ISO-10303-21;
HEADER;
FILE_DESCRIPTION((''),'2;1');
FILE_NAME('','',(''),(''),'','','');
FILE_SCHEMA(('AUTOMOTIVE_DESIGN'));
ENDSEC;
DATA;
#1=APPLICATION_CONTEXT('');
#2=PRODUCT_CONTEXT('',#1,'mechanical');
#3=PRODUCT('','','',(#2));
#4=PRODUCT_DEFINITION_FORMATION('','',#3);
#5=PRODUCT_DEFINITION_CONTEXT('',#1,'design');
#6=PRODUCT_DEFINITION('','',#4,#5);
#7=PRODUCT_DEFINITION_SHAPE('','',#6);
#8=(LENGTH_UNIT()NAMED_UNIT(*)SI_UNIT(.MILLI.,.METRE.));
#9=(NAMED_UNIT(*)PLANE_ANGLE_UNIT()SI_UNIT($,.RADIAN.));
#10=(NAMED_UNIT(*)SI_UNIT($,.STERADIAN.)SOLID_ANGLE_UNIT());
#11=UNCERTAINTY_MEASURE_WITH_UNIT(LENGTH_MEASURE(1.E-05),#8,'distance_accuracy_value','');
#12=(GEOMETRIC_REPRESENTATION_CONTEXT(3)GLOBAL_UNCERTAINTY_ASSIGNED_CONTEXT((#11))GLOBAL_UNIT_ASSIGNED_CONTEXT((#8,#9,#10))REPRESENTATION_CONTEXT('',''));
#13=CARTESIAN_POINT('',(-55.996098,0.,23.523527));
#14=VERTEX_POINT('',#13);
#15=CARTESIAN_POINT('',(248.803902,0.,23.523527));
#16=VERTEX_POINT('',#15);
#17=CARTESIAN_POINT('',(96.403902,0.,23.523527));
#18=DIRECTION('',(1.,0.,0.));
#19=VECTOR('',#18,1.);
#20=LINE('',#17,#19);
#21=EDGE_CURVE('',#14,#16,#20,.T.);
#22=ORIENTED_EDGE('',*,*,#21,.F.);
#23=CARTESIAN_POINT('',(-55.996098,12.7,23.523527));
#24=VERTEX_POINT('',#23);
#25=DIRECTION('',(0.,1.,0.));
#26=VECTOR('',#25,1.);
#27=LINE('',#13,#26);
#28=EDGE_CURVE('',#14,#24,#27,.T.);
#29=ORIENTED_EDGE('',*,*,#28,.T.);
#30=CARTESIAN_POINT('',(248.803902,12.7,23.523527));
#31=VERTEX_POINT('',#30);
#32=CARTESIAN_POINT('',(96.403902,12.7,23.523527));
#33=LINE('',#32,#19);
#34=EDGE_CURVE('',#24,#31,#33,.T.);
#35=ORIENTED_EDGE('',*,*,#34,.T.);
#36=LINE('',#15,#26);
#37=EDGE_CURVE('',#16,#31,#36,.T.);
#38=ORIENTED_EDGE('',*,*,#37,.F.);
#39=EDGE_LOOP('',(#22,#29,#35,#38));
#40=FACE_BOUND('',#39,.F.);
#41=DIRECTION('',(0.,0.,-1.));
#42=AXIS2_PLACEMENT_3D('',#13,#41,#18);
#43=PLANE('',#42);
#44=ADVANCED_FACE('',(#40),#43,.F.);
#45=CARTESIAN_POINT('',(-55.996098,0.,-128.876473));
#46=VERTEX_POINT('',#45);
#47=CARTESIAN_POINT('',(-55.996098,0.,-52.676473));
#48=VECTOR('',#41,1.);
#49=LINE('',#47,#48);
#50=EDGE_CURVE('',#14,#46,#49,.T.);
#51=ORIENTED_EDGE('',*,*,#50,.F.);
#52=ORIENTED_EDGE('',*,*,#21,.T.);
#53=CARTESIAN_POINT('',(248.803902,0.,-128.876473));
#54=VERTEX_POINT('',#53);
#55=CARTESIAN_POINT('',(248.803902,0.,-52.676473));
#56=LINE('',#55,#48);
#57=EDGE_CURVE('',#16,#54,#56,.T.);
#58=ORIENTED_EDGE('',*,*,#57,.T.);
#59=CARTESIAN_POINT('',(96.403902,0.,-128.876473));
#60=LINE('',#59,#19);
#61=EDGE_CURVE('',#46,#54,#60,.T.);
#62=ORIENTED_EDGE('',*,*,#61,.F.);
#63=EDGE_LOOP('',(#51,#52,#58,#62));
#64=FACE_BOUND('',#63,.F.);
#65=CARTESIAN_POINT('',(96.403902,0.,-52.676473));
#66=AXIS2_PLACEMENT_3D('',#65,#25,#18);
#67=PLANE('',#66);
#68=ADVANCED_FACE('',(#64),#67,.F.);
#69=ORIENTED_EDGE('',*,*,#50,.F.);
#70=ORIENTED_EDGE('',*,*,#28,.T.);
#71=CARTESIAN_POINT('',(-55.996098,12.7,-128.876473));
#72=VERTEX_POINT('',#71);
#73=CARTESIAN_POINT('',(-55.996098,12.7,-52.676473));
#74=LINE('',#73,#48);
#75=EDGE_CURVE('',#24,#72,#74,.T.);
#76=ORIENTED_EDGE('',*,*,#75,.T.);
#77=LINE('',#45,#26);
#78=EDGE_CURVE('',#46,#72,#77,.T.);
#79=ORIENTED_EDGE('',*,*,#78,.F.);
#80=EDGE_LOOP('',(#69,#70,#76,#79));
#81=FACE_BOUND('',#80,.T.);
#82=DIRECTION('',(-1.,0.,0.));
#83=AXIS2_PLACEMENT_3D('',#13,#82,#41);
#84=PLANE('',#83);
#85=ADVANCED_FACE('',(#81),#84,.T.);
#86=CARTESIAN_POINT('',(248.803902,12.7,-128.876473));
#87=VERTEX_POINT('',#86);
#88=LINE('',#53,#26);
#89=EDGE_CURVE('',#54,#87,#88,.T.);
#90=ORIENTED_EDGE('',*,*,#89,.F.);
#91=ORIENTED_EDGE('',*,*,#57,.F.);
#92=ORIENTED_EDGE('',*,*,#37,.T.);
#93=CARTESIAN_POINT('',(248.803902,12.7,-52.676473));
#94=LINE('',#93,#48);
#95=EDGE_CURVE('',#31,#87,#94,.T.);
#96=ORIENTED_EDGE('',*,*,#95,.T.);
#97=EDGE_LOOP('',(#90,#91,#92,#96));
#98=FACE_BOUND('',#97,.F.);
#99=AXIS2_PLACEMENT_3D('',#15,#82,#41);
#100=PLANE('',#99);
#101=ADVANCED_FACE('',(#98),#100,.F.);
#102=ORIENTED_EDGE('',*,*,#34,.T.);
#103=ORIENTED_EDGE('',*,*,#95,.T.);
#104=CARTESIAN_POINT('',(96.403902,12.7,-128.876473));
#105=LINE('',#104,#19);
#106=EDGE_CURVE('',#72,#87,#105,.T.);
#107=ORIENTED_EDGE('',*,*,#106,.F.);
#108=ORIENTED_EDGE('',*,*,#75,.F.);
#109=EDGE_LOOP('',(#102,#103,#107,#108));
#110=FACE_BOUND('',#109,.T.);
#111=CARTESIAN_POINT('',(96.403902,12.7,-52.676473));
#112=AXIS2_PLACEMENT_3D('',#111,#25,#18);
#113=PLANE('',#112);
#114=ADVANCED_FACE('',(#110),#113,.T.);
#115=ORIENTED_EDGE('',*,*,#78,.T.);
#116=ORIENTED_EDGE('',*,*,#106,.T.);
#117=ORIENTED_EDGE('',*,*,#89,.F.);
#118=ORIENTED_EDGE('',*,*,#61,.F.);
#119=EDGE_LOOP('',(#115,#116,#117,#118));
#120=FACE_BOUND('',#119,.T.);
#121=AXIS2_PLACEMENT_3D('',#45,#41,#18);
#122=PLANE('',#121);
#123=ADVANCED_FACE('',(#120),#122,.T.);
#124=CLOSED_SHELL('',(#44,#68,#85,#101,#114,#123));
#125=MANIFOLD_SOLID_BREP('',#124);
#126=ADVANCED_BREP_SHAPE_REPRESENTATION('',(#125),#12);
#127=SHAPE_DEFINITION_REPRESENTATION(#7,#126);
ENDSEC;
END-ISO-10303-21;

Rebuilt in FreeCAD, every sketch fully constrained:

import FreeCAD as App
import Part
import Sketcher
from FreeCAD import Vector
Q = App.Units.Quantity


def add_polygon(sketch, points):
    """Adds a closed chain of lines whose ends are joined by coincident constraints."""
    first, n = sketch.GeometryCount, len(points)
    for a, b in zip(points, points[1:] + points[:1]):
        sketch.addGeometry(Part.LineSegment(App.Vector(*a, 0), App.Vector(*b, 0)), False)
    for i in range(n):
        sketch.addConstraint(Sketcher.Constraint("Coincident", first + i, 2, first + (i + 1) % n, 1))

doc = App.newDocument("Part")
params = doc.addObject("Spreadsheet::Sheet", "Params")
for row, (alias, value) in enumerate([
    ("sketch1_width", "12 in"),
    ("sketch1_height", "6 in"),
    ("pad1_length", "0.5 in"),
], start=1):
    params.set(f"A{row}", alias)
    params.set(f"B{row}", "=" + value)
    params.setAlias(f"B{row}", alias)

body = doc.addObject("PartDesign::Body", "Body")

# Sketch on XZ plane
sketch1 = doc.addObject("Sketcher::SketchObject", "Sketch")
body.addObject(sketch1)
sketch1.AttachmentSupport = (doc.XZ_Plane, [""])
sketch1.MapMode = "FlatFace"
add_polygon(sketch1, [(-56, -129), (-56, 24), (249, 24), (249, -129)])  # lines 0-3
sketch1.addConstraint(Sketcher.Constraint("Vertical", 0))
sketch1.addConstraint(Sketcher.Constraint("Horizontal", 1))
sketch1.addConstraint(Sketcher.Constraint("Vertical", 2))
sketch1.addConstraint(Sketcher.Constraint("Horizontal", 3))
sketch1.addConstraint(Sketcher.Constraint("DistanceX", 1, 1, 1, 2, Q("12 in")))
sketch1.addConstraint(Sketcher.Constraint("DistanceY", 0, 1, 0, 2, Q("6 in")))
sketch1.addConstraint(Sketcher.Constraint("DistanceX", 0, 2, -1, 1, Q("55.996098 mm")))
sketch1.addConstraint(Sketcher.Constraint("DistanceY", -1, 1, 0, 2, Q("23.523527 mm")))
sketch1.setExpression("Constraints[8]", "Params.sketch1_width")
sketch1.setExpression("Constraints[9]", "Params.sketch1_height")
pad1 = doc.addObject("PartDesign::Pad", "Pad")
body.addObject(pad1)
pad1.Profile = sketch1
pad1.setExpression("Length", "Params.pad1_length")
pad1.Reversed = True

doc.recompute()
